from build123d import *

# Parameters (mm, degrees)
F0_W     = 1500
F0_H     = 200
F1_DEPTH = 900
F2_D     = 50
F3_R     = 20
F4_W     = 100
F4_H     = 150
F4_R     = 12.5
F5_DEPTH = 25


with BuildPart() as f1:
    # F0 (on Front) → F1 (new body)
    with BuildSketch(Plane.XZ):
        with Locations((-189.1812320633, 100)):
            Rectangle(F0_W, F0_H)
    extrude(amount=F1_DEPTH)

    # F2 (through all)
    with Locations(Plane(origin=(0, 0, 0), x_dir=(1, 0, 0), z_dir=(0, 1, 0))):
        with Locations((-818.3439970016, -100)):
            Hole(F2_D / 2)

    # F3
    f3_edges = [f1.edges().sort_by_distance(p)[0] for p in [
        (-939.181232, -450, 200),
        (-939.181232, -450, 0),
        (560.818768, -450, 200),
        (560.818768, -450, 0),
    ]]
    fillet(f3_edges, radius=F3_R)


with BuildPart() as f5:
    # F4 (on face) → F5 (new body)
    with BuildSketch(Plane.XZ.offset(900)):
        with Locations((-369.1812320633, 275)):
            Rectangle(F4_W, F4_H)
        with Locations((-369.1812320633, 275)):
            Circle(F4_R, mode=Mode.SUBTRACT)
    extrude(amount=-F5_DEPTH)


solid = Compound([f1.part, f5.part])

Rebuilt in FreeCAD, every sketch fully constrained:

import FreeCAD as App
import Part
import Sketcher
from FreeCAD import Vector
Q = App.Units.Quantity


def edges_at(feature, points):
    """Names of the edges that pass closest to the given points."""
    edges = feature.Shape.Edges
    near = lambda p: min(range(len(edges)), key=lambda i: edges[i].distToShape(Part.Vertex(*p))[0])
    return sorted({f"Edge{near(p) + 1}" for p in points})


def add_polygon(sketch, points):
    """Adds a closed chain of lines whose ends are joined by coincident constraints."""
    first, n = sketch.GeometryCount, len(points)
    for a, b in zip(points, points[1:] + points[:1]):
        sketch.addGeometry(Part.LineSegment(App.Vector(*a, 0), App.Vector(*b, 0)), False)
    for i in range(n):
        sketch.addConstraint(Sketcher.Constraint("Coincident", first + i, 2, first + (i + 1) % n, 1))

doc = App.newDocument("Part")
body = doc.addObject("PartDesign::Body", "Body")

# Sketch on XZ plane
sketch1 = body.newObject("Sketcher::SketchObject", "Sketch")
sketch1.AttachmentSupport = (doc.getObject("XZ_Plane"), [""])
sketch1.MapMode = "FlatFace"
add_polygon(sketch1, [(-939.181232, 200), (-939.181232, 0), (560.818768, 0), (560.818768, 200)])  # lines 0-3
sketch1.addConstraint([
    Sketcher.Constraint("Vertical", 0),
    Sketcher.Constraint("Horizontal", 1),
    Sketcher.Constraint("Vertical", 2),
    Sketcher.Constraint("Horizontal", 3),
    Sketcher.Constraint("PointOnObject", 0, 2, -1),
    Sketcher.Constraint("DistanceX", 1, 1, 1, 2, Q("1500 mm")),
    Sketcher.Constraint("DistanceY", 0, 2, 0, 1, Q("200 mm")),
    Sketcher.Constraint("DistanceX", 0, 2, -1, 1, Q("939.181232 mm")),
])
pad1 = body.newObject("PartDesign::Pad", "Pad")
pad1.Profile = sketch1
pad1.Length = 900

# Sketch on XZ plane
sketch2 = body.newObject("Sketcher::SketchObject", "Sketch001")
sketch2.AttachmentSupport = (doc.getObject("XZ_Plane"), [""])
sketch2.MapMode = "FlatFace"
sketch2.addGeometry(Part.Circle(Vector(-818.343997, 100, 0), Vector(0, 0, 1), 25), False)
sketch2.addConstraint([
    Sketcher.Constraint("Diameter", 0, Q("50 mm")),
    Sketcher.Constraint("DistanceY", -1, 1, 0, 3, Q("100 mm")),
    Sketcher.Constraint("DistanceX", 0, 3, -1, 1, Q("818.343997 mm")),
])
doc.recompute()
hole = body.newObject("PartDesign::Hole", "Hole")
hole.Profile = sketch2
hole.ThreadType = "None"
hole.Diameter = 50
hole.DepthType = "ThroughAll"
hole.Reversed = True
doc.recompute()

fillet = body.newObject("PartDesign::Fillet", "Fillet")
fillet.Base = (hole, edges_at(hole, [
    (-939.181, -450, 200),
    (-939.181, -450, 0),
    (560.819, -450, 200),
    (560.819, -450, 0),
]))
fillet.Radius = 20
body2 = doc.addObject("PartDesign::Body", "Body001")

# Sketch on XZ plane
sketch3 = body2.newObject("Sketcher::SketchObject", "Sketch002")
sketch3.AttachmentSupport = (doc.getObject("XZ_Plane001"), [""])
sketch3.MapMode = "FlatFace"
sketch3.AttachmentOffset = App.Placement(Vector(0, 0, 900), App.Rotation())
add_polygon(sketch3, [(-419.181232, 350), (-419.181232, 200), (-319.181232, 200), (-319.181232, 350)])  # lines 0-3
sketch3.addGeometry(Part.Circle(Vector(-369.181232, 275, 0), Vector(0, 0, 1), 12.5), False)  # 4
sketch3.addConstraint([
    Sketcher.Constraint("Vertical", 0),
    Sketcher.Constraint("Horizontal", 1),
    Sketcher.Constraint("Vertical", 2),
    Sketcher.Constraint("Horizontal", 3),
    Sketcher.Constraint("Diameter", 4, Q("25 mm")),
    Sketcher.Constraint("DistanceX", 1, 1, 1, 2, Q("100 mm")),
    Sketcher.Constraint("DistanceY", 0, 2, 0, 1, Q("150 mm")),
    Sketcher.Constraint("DistanceY", -1, 1, 4, 3, Q("275 mm")),
    Sketcher.Constraint("DistanceY", -1, 1, 0, 2, Q("200 mm")),
    Sketcher.Constraint("DistanceX", 0, 2, 4, 3, Q("50 mm")),
    Sketcher.Constraint("DistanceX", 4, 3, -1, 1, Q("369.181232 mm")),
])
pad2 = body2.newObject("PartDesign::Pad", "Pad001")
pad2.Profile = sketch3
pad2.Length = 25
pad2.Reversed = True

doc.recompute()
